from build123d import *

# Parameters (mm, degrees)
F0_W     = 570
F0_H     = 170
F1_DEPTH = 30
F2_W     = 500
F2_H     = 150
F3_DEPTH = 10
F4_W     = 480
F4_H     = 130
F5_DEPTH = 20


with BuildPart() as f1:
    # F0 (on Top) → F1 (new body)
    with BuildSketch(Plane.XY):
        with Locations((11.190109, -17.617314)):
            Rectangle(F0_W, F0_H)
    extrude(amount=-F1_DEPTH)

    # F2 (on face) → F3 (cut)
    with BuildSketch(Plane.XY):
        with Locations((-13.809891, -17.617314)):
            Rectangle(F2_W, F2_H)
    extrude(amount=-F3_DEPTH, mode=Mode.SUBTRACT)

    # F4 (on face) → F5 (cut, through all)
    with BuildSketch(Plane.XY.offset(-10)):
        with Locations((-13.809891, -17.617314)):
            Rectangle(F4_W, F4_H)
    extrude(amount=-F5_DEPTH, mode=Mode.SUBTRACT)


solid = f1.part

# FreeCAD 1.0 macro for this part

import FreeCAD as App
import Part
import Sketcher


def add_polygon(sketch, points):
    """Adds a closed chain of lines whose ends are joined by coincident constraints."""
    first, n = sketch.GeometryCount, len(points)
    for a, b in zip(points, points[1:] + points[:1]):
        sketch.addGeometry(Part.LineSegment(App.Vector(*a, 0), App.Vector(*b, 0)), False)
    for i in range(n):
        sketch.addConstraint(Sketcher.Constraint("Coincident", first + i, 2, first + (i + 1) % n, 1))

doc = App.newDocument("Part")
body = doc.addObject("PartDesign::Body", "Body")

# Sketch on XY plane
sketch1 = doc.addObject("Sketcher::SketchObject", "Sketch")
body.addObject(sketch1)
sketch1.AttachmentSupport = (doc.XY_Plane, [""])
sketch1.MapMode = "FlatFace"
add_polygon(sketch1, [(-274, 67), (-274, -103), (296, -103), (296, 67)])  # lines 0-3
sketch1.addConstraint([
    Sketcher.Constraint("Vertical", 0),
    Sketcher.Constraint("Horizontal", 1),
    Sketcher.Constraint("Vertical", 2),
    Sketcher.Constraint("Horizontal", 3),
    Sketcher.Constraint("DistanceX", 1, 1, 1, 2, 570.0),
    Sketcher.Constraint("DistanceY", 0, 2, 0, 1, 170.0),
    Sketcher.Constraint("DistanceX", 0, 2, -1, 1, 273.809891),
    Sketcher.Constraint("DistanceY", 0, 2, -1, 1, 102.617314),
])
pad1 = doc.addObject("PartDesign::Pad", "Pad")
body.addObject(pad1)
pad1.Profile = sketch1
pad1.Length = 30
pad1.Reversed = True

# Sketch on XY plane
sketch2 = doc.addObject("Sketcher::SketchObject", "Sketch001")
body.addObject(sketch2)
sketch2.AttachmentSupport = (doc.XY_Plane, [""])
sketch2.MapMode = "FlatFace"
add_polygon(sketch2, [(-264, 57), (-264, -93), (236, -93), (236, 57)])  # lines 0-3
sketch2.addConstraint([
    Sketcher.Constraint("Vertical", 0),
    Sketcher.Constraint("Horizontal", 1),
    Sketcher.Constraint("Vertical", 2),
    Sketcher.Constraint("Horizontal", 3),
    Sketcher.Constraint("DistanceX", 1, 1, 1, 2, 500.0),
    Sketcher.Constraint("DistanceY", 0, 2, 0, 1, 150.0),
    Sketcher.Constraint("DistanceX", 0, 2, -1, 1, 263.809891),
    Sketcher.Constraint("DistanceY", 0, 2, -1, 1, 92.617314),
])
pocket1 = doc.addObject("PartDesign::Pocket", "Pocket")
body.addObject(pocket1)
pocket1.Profile = sketch2
pocket1.Length = 10

# Sketch on XY plane
sketch3 = doc.addObject("Sketcher::SketchObject", "Sketch002")
body.addObject(sketch3)
sketch3.AttachmentSupport = (doc.XY_Plane, [""])
sketch3.MapMode = "FlatFace"
sketch3.AttachmentOffset = App.Placement(App.Vector(0, 0, -10), App.Rotation())
add_polygon(sketch3, [(-254, 47), (-254, -83), (226, -83), (226, 47)])  # lines 0-3
sketch3.addConstraint([
    Sketcher.Constraint("Vertical", 0),
    Sketcher.Constraint("Horizontal", 1),
    Sketcher.Constraint("Vertical", 2),
    Sketcher.Constraint("Horizontal", 3),
    Sketcher.Constraint("DistanceX", 1, 1, 1, 2, 480.0),
    Sketcher.Constraint("DistanceY", 0, 2, 0, 1, 130.0),
    Sketcher.Constraint("DistanceX", 0, 2, -1, 1, 253.809891),
    Sketcher.Constraint("DistanceY", 0, 2, -1, 1, 82.617314),
])
pocket2 = doc.addObject("PartDesign::Pocket", "Pocket001")
body.addObject(pocket2)
pocket2.Profile = sketch3
pocket2.Type = "ThroughAll"

doc.recompute()
